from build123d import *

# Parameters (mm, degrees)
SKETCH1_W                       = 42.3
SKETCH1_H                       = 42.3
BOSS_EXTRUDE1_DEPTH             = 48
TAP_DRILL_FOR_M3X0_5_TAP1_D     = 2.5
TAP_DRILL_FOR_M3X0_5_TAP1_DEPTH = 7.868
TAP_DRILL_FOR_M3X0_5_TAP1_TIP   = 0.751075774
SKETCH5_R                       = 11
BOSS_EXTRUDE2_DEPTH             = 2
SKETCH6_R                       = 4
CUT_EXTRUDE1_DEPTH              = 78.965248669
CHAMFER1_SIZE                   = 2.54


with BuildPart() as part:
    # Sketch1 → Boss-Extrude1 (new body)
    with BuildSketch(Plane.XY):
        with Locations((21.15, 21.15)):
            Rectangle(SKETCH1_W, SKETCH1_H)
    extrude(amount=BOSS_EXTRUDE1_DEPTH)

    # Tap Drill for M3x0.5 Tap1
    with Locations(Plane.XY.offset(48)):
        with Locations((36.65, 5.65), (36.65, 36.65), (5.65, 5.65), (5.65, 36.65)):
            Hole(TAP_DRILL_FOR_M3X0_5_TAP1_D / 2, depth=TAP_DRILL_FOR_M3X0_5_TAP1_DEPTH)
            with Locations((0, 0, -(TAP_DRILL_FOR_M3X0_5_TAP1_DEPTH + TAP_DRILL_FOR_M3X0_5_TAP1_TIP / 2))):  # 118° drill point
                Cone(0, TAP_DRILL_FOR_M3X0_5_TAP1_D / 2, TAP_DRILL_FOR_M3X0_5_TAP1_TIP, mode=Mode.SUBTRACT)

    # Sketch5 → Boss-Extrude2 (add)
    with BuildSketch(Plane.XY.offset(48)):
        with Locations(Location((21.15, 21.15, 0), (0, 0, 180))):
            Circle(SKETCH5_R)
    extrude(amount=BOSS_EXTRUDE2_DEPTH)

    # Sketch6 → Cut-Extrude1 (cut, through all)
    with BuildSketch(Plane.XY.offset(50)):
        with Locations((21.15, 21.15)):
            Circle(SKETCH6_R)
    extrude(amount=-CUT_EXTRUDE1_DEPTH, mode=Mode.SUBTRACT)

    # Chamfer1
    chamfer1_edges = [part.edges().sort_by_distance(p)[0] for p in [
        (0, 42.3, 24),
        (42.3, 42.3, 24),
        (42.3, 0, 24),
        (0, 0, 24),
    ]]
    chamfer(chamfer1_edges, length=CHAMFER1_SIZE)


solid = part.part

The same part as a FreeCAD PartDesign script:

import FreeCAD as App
import Part
import Sketcher
from FreeCAD import Vector
Q = App.Units.Quantity


def edges_at(feature, points):
    """Names of the edges that pass closest to the given points."""
    edges = feature.Shape.Edges
    near = lambda p: min(range(len(edges)), key=lambda i: edges[i].distToShape(Part.Vertex(*p))[0])
    return sorted({f"Edge{near(p) + 1}" for p in points})

doc = App.newDocument("Part")
body = doc.addObject("PartDesign::Body", "Body")

# Sketch on XY plane
sketch1 = doc.addObject("Sketcher::SketchObject", "Sketch")
body.addObject(sketch1)
sketch1.AttachmentSupport = (doc.XY_Plane, [""])
sketch1.MapMode = "FlatFace"
sketch1.addGeometry([
    Part.LineSegment(Vector(0, 42.3, 0), Vector(0, 0, 0)),
    Part.LineSegment(Vector(0, 0, 0), Vector(42.3, 0, 0)),
    Part.LineSegment(Vector(42.3, 0, 0), Vector(42.3, 42.3, 0)),
    Part.LineSegment(Vector(42.3, 42.3, 0), Vector(0, 42.3, 0)),
], False)
sketch1.addConstraint([
    Sketcher.Constraint("Coincident", 0, 2, 1, 1),
    Sketcher.Constraint("Coincident", 1, 2, 2, 1),
    Sketcher.Constraint("Coincident", 2, 2, 3, 1),
    Sketcher.Constraint("Coincident", 3, 2, 0, 1),
    Sketcher.Constraint("Vertical", 0),
    Sketcher.Constraint("Horizontal", 1),
    Sketcher.Constraint("Vertical", 2),
    Sketcher.Constraint("Horizontal", 3),
    Sketcher.Constraint("Coincident", 0, 2, -1, 1),
    Sketcher.Constraint("Equal", 3, 0),
    Sketcher.Constraint("DistanceX", 1, 1, 1, 2, Q("42.3 mm")),
])
pad1 = doc.addObject("PartDesign::Pad", "Pad")
body.addObject(pad1)
pad1.Profile = sketch1
pad1.Length = 48

# Sketch on XY plane
sketch2 = doc.addObject("Sketcher::SketchObject", "Sketch001")
body.addObject(sketch2)
sketch2.AttachmentSupport = (doc.XY_Plane, [""])
sketch2.MapMode = "FlatFace"
sketch2.AttachmentOffset = App.Placement(Vector(0, 0, 48), App.Rotation())
sketch2.addGeometry([
    Part.Circle(Vector(36.65, 5.65, 0), Vector(0, 0, 1), 1.25),
    Part.Circle(Vector(36.65, 36.65, 0), Vector(0, 0, 1), 1.25),
    Part.Circle(Vector(5.65, 5.65, 0), Vector(0, 0, 1), 1.25),
    Part.Circle(Vector(5.65, 36.65, 0), Vector(0, 0, 1), 1.25),
], False)
sketch2.addConstraint([
    Sketcher.Constraint("Equal", 0, 1),
    Sketcher.Constraint("Equal", 1, 2),
    Sketcher.Constraint("Equal", 2, 3),
    Sketcher.Constraint("Horizontal", 0, 3, 2, 3),
    Sketcher.Constraint("Horizontal", 1, 3, 3, 3),
    Sketcher.Constraint("Vertical", 0, 3, 1, 3),
    Sketcher.Constraint("Vertical", 2, 3, 3, 3),
    Sketcher.Constraint("Diameter", 0, Q("2.5 mm")),
    Sketcher.Constraint("DistanceY", 0, 3, 1, 3, Q("31 mm")),
    Sketcher.Constraint("DistanceX", 2, 3, 0, 3, Q("31 mm")),
    Sketcher.Constraint("DistanceX", -1, 1, 0, 3, Q("36.65 mm")),
    Sketcher.Constraint("DistanceY", -1, 1, 0, 3, Q("5.65 mm")),
])
doc.recompute()
hole = doc.addObject("PartDesign::Hole", "Hole")
body.addObject(hole)
hole.Profile = sketch2
hole.ThreadType = "None"
hole.Diameter = 2.5
hole.DepthType = "Dimension"
hole.Depth = 7.868
hole.DrillPoint = "Angled"
hole.DrillPointAngle = 118

# Sketch on XY plane
sketch3 = doc.addObject("Sketcher::SketchObject", "Sketch002")
body.addObject(sketch3)
sketch3.AttachmentSupport = (doc.XY_Plane, [""])
sketch3.MapMode = "FlatFace"
sketch3.AttachmentOffset = App.Placement(Vector(0, 0, 48), App.Rotation())
sketch3.addGeometry(Part.Circle(Vector(21.15, 21.15, 0), Vector(0, 0, 1), 11), False)
sketch3.addConstraint([
    Sketcher.Constraint("Diameter", 0, Q("22 mm")),
    Sketcher.Constraint("DistanceX", -1, 1, 0, 3, Q("21.15 mm")),
    Sketcher.Constraint("DistanceY", -1, 1, 0, 3, Q("21.15 mm")),
])
pad2 = doc.addObject("PartDesign::Pad", "Pad001")
body.addObject(pad2)
pad2.Profile = sketch3
pad2.Length = 2

# Sketch on XY plane
sketch4 = doc.addObject("Sketcher::SketchObject", "Sketch003")
body.addObject(sketch4)
sketch4.AttachmentSupport = (doc.XY_Plane, [""])
sketch4.MapMode = "FlatFace"
sketch4.AttachmentOffset = App.Placement(Vector(0, 0, 50), App.Rotation())
sketch4.addGeometry(Part.Circle(Vector(21.15, 21.15, 0), Vector(0, 0, 1), 4), False)
sketch4.addConstraint([
    Sketcher.Constraint("Diameter", 0, Q("8 mm")),
    Sketcher.Constraint("DistanceX", -1, 1, 0, 3, Q("21.15 mm")),
    Sketcher.Constraint("DistanceY", -1, 1, 0, 3, Q("21.15 mm")),
])
pocket1 = doc.addObject("PartDesign::Pocket", "Pocket")
body.addObject(pocket1)
pocket1.Profile = sketch4
pocket1.Type = "ThroughAll"
doc.recompute()

chamfer = doc.addObject("PartDesign::Chamfer", "Chamfer")
body.addObject(chamfer)
chamfer.Base = (pocket1, edges_at(pocket1, [
    (0, 42.3, 24),
    (42.3, 42.3, 24),
    (42.3, 0, 24),
    (0, 0, 24),
]))
chamfer.Size = 2.54

doc.recompute()
